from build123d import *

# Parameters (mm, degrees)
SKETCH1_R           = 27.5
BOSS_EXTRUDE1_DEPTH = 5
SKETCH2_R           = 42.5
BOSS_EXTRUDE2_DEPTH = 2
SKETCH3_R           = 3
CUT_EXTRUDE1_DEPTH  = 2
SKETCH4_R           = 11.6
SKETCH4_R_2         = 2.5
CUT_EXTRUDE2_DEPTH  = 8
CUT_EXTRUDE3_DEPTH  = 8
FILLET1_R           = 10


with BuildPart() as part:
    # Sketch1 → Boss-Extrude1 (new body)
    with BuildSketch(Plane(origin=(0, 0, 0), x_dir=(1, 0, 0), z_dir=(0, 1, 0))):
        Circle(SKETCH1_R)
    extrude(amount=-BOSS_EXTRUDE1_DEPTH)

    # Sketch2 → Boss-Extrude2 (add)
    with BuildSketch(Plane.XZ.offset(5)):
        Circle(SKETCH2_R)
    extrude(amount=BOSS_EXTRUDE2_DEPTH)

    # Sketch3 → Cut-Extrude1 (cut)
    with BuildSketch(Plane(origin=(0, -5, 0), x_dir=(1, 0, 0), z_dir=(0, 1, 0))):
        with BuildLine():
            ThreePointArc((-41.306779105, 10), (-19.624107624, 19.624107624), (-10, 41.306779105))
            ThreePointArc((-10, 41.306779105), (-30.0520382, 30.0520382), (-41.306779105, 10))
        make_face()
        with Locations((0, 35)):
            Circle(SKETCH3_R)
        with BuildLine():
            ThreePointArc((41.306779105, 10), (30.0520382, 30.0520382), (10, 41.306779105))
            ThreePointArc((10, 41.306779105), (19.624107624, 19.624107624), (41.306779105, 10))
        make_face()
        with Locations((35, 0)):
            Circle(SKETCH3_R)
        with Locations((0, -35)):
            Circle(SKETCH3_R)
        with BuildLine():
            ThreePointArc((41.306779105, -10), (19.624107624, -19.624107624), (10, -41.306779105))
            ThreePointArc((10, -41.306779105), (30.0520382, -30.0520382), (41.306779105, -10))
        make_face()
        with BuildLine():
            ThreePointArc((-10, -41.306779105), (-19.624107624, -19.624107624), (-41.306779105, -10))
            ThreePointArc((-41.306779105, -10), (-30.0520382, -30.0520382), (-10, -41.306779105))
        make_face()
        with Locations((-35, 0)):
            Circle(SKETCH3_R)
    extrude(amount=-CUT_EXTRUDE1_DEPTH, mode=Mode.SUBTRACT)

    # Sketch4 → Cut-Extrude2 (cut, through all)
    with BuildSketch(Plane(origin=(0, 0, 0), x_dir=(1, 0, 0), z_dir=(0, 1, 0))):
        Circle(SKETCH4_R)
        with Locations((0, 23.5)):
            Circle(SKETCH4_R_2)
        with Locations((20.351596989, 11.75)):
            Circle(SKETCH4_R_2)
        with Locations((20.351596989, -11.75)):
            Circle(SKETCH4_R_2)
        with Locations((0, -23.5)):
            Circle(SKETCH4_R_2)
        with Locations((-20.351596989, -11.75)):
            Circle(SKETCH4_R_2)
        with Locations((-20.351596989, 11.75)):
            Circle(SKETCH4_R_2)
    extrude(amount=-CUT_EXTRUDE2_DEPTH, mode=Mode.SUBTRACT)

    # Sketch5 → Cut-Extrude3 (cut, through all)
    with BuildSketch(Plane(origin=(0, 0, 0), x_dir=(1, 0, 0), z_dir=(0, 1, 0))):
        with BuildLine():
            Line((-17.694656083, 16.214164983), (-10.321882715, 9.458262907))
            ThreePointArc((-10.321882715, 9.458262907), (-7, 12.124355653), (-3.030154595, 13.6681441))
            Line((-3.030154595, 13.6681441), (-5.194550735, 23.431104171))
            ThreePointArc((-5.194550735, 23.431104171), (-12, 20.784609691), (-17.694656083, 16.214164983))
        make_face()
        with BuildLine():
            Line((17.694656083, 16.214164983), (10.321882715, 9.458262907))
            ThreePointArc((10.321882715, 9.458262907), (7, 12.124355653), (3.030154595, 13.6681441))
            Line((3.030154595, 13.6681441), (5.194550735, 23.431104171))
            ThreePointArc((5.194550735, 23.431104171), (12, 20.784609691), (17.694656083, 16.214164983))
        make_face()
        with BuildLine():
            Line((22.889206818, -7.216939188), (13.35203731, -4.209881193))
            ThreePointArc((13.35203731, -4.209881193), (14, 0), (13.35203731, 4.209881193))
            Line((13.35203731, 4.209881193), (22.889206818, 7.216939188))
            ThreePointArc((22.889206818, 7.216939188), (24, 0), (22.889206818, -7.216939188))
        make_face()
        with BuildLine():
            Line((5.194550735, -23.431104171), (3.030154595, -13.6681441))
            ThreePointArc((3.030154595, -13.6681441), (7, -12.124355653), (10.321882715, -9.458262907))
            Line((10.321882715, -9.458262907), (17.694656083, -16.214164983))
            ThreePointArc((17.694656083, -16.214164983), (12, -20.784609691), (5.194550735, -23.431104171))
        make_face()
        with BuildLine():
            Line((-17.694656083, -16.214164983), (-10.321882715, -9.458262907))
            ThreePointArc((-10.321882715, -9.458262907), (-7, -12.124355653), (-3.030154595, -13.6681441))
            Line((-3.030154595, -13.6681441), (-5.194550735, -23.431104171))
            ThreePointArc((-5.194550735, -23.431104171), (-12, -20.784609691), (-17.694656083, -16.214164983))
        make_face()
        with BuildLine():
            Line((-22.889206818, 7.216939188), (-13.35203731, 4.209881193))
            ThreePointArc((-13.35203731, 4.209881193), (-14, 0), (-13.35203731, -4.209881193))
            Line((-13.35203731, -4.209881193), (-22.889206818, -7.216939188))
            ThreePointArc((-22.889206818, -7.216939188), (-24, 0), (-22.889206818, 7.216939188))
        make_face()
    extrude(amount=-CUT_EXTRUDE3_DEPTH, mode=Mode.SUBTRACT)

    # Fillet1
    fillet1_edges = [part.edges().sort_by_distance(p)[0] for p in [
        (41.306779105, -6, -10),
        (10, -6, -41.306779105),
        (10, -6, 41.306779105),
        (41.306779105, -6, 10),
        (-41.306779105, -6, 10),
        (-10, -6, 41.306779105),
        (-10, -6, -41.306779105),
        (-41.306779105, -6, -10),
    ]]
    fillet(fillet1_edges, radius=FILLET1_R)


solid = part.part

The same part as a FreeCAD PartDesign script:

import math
import FreeCAD as App
import Part
import Sketcher
from FreeCAD import Vector
Q = App.Units.Quantity


def edges_at(feature, points):
    """Names of the edges that pass closest to the given points."""
    edges = feature.Shape.Edges
    near = lambda p: min(range(len(edges)), key=lambda i: edges[i].distToShape(Part.Vertex(*p))[0])
    return sorted({f"Edge{near(p) + 1}" for p in points})

doc = App.newDocument("Part")
body = doc.addObject("PartDesign::Body", "Body")

sketch1 = body.newObject("Sketcher::SketchObject", "Sketch")
sketch1.AttachmentSupport = (doc.getObject("XZ_Plane"), [""])
sketch1.MapMode = "FlatFace"
sketch1.addGeometry(Part.Circle(Vector(0, 0, 0), Vector(0, 0, 1), 28), False)
sketch1.addConstraint(Sketcher.Constraint("Coincident", 0, 3, -1, 1))
sketch1.addConstraint(Sketcher.Constraint("Diameter", 0, 55.0))
pad1 = body.newObject("PartDesign::Pad", "Pad")
pad1.Profile = sketch1
pad1.Length = 5

sketch2 = body.newObject("Sketcher::SketchObject", "Sketch001")
sketch2.AttachmentSupport = (doc.getObject("XZ_Plane"), [""])
sketch2.MapMode = "FlatFace"
sketch2.AttachmentOffset = App.Placement(Vector(0, 0, 5), App.Rotation())
sketch2.addGeometry(Part.Circle(Vector(0, 0, 0), Vector(0, 0, 1), 42), False)
sketch2.addConstraint(Sketcher.Constraint("Coincident", 0, 3, -1, 1))
sketch2.addConstraint(Sketcher.Constraint("Diameter", 0, 85.0))
pad2 = body.newObject("PartDesign::Pad", "Pad001")
pad2.Profile = sketch2
pad2.Length = 2

sketch3 = body.newObject("Sketcher::SketchObject", "Sketch002")
sketch3.AttachmentSupport = (doc.getObject("XZ_Plane"), [""])
sketch3.MapMode = "FlatFace"
sketch3.AttachmentOffset = App.Placement(Vector(0, 0, 5), App.Rotation())
sketch3.addGeometry(Part.ArcOfCircle(Part.Circle(Vector(-43, -43, 0), Vector(0, 0, 1), 33), math.radians(3), math.radians(87)), False)
sketch3.addGeometry(Part.ArcOfCircle(Part.Circle(Vector(0, 0, 0), Vector(0, 0, 1), 42.5), math.radians(-166), math.radians(-104)), False)
sketch3.addGeometry(Part.Circle(Vector(0, -35, 0), Vector(0, 0, 1), 3), False)
sketch3.addGeometry(Part.ArcOfCircle(Part.Circle(Vector(0, 0, 0), Vector(0, 0, 1), 42.5), math.radians(-76), math.radians(-14)), False)
sketch3.addGeometry(Part.ArcOfCircle(Part.Circle(Vector(43, -43, 0), Vector(0, 0, 1), 33), math.radians(93), math.radians(177)), False)
sketch3.addGeometry(Part.Circle(Vector(35, 0, 0), Vector(0, 0, 1), 3), False)
sketch3.addGeometry(Part.Circle(Vector(0, 35, 0), Vector(0, 0, 1), 3), False)
sketch3.addGeometry(Part.ArcOfCircle(Part.Circle(Vector(43, 43, 0), Vector(0, 0, 1), 33), math.radians(-177), math.radians(-93)), False)
sketch3.addGeometry(Part.ArcOfCircle(Part.Circle(Vector(0, 0, 0), Vector(0, 0, 1), 42.5), math.radians(14), math.radians(76)), False)
sketch3.addGeometry(Part.ArcOfCircle(Part.Circle(Vector(-43, 43, 0), Vector(0, 0, 1), 33), math.radians(-87), math.radians(-3)), False)
sketch3.addGeometry(Part.ArcOfCircle(Part.Circle(Vector(0, 0, 0), Vector(0, 0, 1), 42.5), math.radians(104), math.radians(166)), False)
sketch3.addGeometry(Part.Circle(Vector(-35, 0, 0), Vector(0, 0, 1), 3), False)
sketch3.addConstraint(Sketcher.Constraint("Coincident", 0, 1, 1, 2))
sketch3.addConstraint(Sketcher.Constraint("Coincident", 1, 1, 0, 2))
sketch3.addConstraint(Sketcher.Constraint("Coincident", 3, 1, 4, 2))
sketch3.addConstraint(Sketcher.Constraint("Coincident", 4, 1, 3, 2))
sketch3.addConstraint(Sketcher.Constraint("Coincident", 7, 1, 8, 2))
sketch3.addConstraint(Sketcher.Constraint("Coincident", 8, 1, 7, 2))
sketch3.addConstraint(Sketcher.Constraint("Coincident", 9, 1, 10, 2))
sketch3.addConstraint(Sketcher.Constraint("Coincident", 10, 1, 9, 2))
sketch3.addConstraint(Sketcher.Constraint("Coincident", 1, 3, -1, 1))
sketch3.addConstraint(Sketcher.Constraint("Coincident", 3, 3, -1, 1))
sketch3.addConstraint(Sketcher.Constraint("Coincident", 8, 3, -1, 1))
sketch3.addConstraint(Sketcher.Constraint("Coincident", 10, 3, -1, 1))
sketch3.addConstraint(Sketcher.Constraint("Equal", 1, 3))
sketch3.addConstraint(Sketcher.Constraint("Equal", 0, 4))
sketch3.addConstraint(Sketcher.Constraint("Equal", 2, 5))
sketch3.addConstraint(Sketcher.Constraint("Equal", 5, 6))
sketch3.addConstraint(Sketcher.Constraint("Equal", 4, 7))
sketch3.addConstraint(Sketcher.Constraint("Equal", 3, 8))
sketch3.addConstraint(Sketcher.Constraint("Equal", 7, 9))
sketch3.addConstraint(Sketcher.Constraint("Equal", 8, 10))
sketch3.addConstraint(Sketcher.Constraint("Equal", 6, 11))
sketch3.addConstraint(Sketcher.Constraint("Symmetric", 2, 3, 6, 3, -1, 1))
sketch3.addConstraint(Sketcher.Constraint("Symmetric", 0, 3, 7, 3, -1, 1))
sketch3.addConstraint(Sketcher.Constraint("Symmetric", 4, 3, 9, 3, -1, 1))
sketch3.addConstraint(Sketcher.Constraint("Symmetric", 5, 3, 11, 3, -1, 1))
sketch3.addConstraint(Sketcher.Constraint("Symmetric", 0, 3, 4, 3, -2))
sketch3.addConstraint(Sketcher.Constraint("PointOnObject", 2, 3, -2))
sketch3.addConstraint(Sketcher.Constraint("PointOnObject", 5, 3, -1))
sketch3.addConstraint(Sketcher.Constraint("Diameter", 2, 6.0))
sketch3.addConstraint(Sketcher.Constraint("Radius", 0, 33.0))
sketch3.addConstraint(Sketcher.Constraint("Radius", 1, 42.5))
sketch3.addConstraint(Sketcher.Constraint("DistanceY", 2, 3, -1, 1, 35.0))
sketch3.addConstraint(Sketcher.Constraint("DistanceX", -1, 1, 5, 3, 35.0))
sketch3.addConstraint(Sketcher.Constraint("DistanceX", 0, 1, -1, 1, 10.0))
sketch3.addConstraint(Sketcher.Constraint("DistanceY", 1, 1, -1, 1, 10.0))
pocket1 = body.newObject("PartDesign::Pocket", "Pocket")
pocket1.Profile = sketch3
pocket1.Length = 2
pocket1.Reversed = True

sketch4 = body.newObject("Sketcher::SketchObject", "Sketch003")
sketch4.AttachmentSupport = (doc.getObject("XZ_Plane"), [""])
sketch4.MapMode = "FlatFace"
sketch4.addGeometry(Part.Circle(Vector(0, 0, 0), Vector(0, 0, 1), 11.6), False)
sketch4.addGeometry(Part.Circle(Vector(0, -23.5, 0), Vector(0, 0, 1), 2.5), False)
sketch4.addGeometry(Part.Circle(Vector(20.4, -11.8, 0), Vector(0, 0, 1), 2.5), False)
sketch4.addGeometry(Part.Circle(Vector(20.4, 11.8, 0), Vector(0, 0, 1), 2.5), False)
sketch4.addGeometry(Part.Circle(Vector(0, 23.5, 0), Vector(0, 0, 1), 2.5), False)
sketch4.addGeometry(Part.Circle(Vector(-20.4, 11.8, 0), Vector(0, 0, 1), 2.5), False)
sketch4.addGeometry(Part.Circle(Vector(-20.4, -11.8, 0), Vector(0, 0, 1), 2.5), False)
sketch4.addConstraint(Sketcher.Constraint("Coincident", 0, 3, -1, 1))
sketch4.addConstraint(Sketcher.Constraint("Equal", 1, 2))
sketch4.addConstraint(Sketcher.Constraint("Equal", 2, 3))
sketch4.addConstraint(Sketcher.Constraint("Equal", 3, 4))
sketch4.addConstraint(Sketcher.Constraint("Equal", 4, 5))
sketch4.addConstraint(Sketcher.Constraint("Equal", 5, 6))
sketch4.addConstraint(Sketcher.Constraint("Symmetric", 1, 3, 4, 3, -1, 1))
sketch4.addConstraint(Sketcher.Constraint("Symmetric", 2, 3, 5, 3, -1, 1))
sketch4.addConstraint(Sketcher.Constraint("Symmetric", 3, 3, 6, 3, -1, 1))
sketch4.addConstraint(Sketcher.Constraint("Symmetric", 3, 3, 5, 3, -2))
sketch4.addConstraint(Sketcher.Constraint("PointOnObject", 1, 3, -2))
sketch4.addConstraint(Sketcher.Constraint("Diameter", 1, 5.0))
sketch4.addConstraint(Sketcher.Constraint("Diameter", 0, 23.2))
sketch4.addConstraint(Sketcher.Constraint("DistanceY", 1, 3, 4, 3, 47.0))
sketch4.addConstraint(Sketcher.Constraint("DistanceY", 2, 3, 3, 3, 23.5))
sketch4.addConstraint(Sketcher.Constraint("DistanceX", -1, 1, 2, 3, 20.351597))
pocket2 = body.newObject("PartDesign::Pocket", "Pocket001")
pocket2.Profile = sketch4
pocket2.Type = "ThroughAll"
pocket2.Reversed = True

sketch5 = body.newObject("Sketcher::SketchObject", "Sketch004")
sketch5.AttachmentSupport = (doc.getObject("XZ_Plane"), [""])
sketch5.MapMode = "FlatFace"
sketch5.addGeometry(Part.LineSegment(Vector(-18, -16, 0), Vector(-10, -9, 0)), False)
sketch5.addGeometry(Part.ArcOfCircle(Part.Circle(Vector(0, 0, 0), Vector(0, 0, 1), 14), math.radians(-137), math.radians(-103)), False)
sketch5.addGeometry(Part.LineSegment(Vector(-3, -14, 0), Vector(-5, -23, 0)), False)
sketch5.addGeometry(Part.ArcOfCircle(Part.Circle(Vector(0, 0, 0), Vector(0, 0, 1), 24), math.radians(-138), math.radians(-103)), False)
sketch5.addGeometry(Part.LineSegment(Vector(10, -9, 0), Vector(18, -16, 0)), False)
sketch5.addGeometry(Part.ArcOfCircle(Part.Circle(Vector(0, 0, 0), Vector(0, 0, 1), 24), math.radians(-77), math.radians(-42)), False)
sketch5.addGeometry(Part.LineSegment(Vector(5, -23, 0), Vector(3, -14, 0)), False)
sketch5.addGeometry(Part.ArcOfCircle(Part.Circle(Vector(0, 0, 0), Vector(0, 0, 1), 14), math.radians(-77), math.radians(-43)), False)
sketch5.addGeometry(Part.LineSegment(Vector(13, 4, 0), Vector(23, 7, 0)), False)
sketch5.addGeometry(Part.ArcOfCircle(Part.Circle(Vector(0, 0, 0), Vector(0, 0, 1), 24), math.radians(-17), math.radians(17)), False)
sketch5.addGeometry(Part.LineSegment(Vector(23, -7, 0), Vector(13, -4, 0)), False)
sketch5.addGeometry(Part.ArcOfCircle(Part.Circle(Vector(0, 0, 0), Vector(0, 0, 1), 14), math.radians(-18), math.radians(18)), False)
sketch5.addGeometry(Part.LineSegment(Vector(3, 14, 0), Vector(5, 23, 0)), False)
sketch5.addGeometry(Part.ArcOfCircle(Part.Circle(Vector(0, 0, 0), Vector(0, 0, 1), 24), math.radians(42), math.radians(77)), False)
sketch5.addGeometry(Part.LineSegment(Vector(18, 16, 0), Vector(10, 9, 0)), False)
sketch5.addGeometry(Part.ArcOfCircle(Part.Circle(Vector(0, 0, 0), Vector(0, 0, 1), 14), math.radians(43), math.radians(77)), False)
sketch5.addGeometry(Part.LineSegment(Vector(-10, 9, 0), Vector(-18, 16, 0)), False)
sketch5.addGeometry(Part.ArcOfCircle(Part.Circle(Vector(0, 0, 0), Vector(0, 0, 1), 24), math.radians(103), math.radians(138)), False)
sketch5.addGeometry(Part.LineSegment(Vector(-5, 23, 0), Vector(-3, 14, 0)), False)
sketch5.addGeometry(Part.ArcOfCircle(Part.Circle(Vector(0, 0, 0), Vector(0, 0, 1), 14), math.radians(103), math.radians(137)), False)
sketch5.addGeometry(Part.LineSegment(Vector(-13, -4, 0), Vector(-23, -7, 0)), False)
sketch5.addGeometry(Part.ArcOfCircle(Part.Circle(Vector(0, 0, 0), Vector(0, 0, 1), 24), math.radians(163), math.radians(197)), False)
sketch5.addGeometry(Part.LineSegment(Vector(-23, 7, 0), Vector(-13, 4, 0)), False)
sketch5.addGeometry(Part.ArcOfCircle(Part.Circle(Vector(0, 0, 0), Vector(0, 0, 1), 14), math.radians(162), math.radians(198)), False)
sketch5.addConstraint(Sketcher.Constraint("Coincident", 0, 2, 1, 1))
sketch5.addConstraint(Sketcher.Constraint("Coincident", 1, 2, 2, 1))
sketch5.addConstraint(Sketcher.Constraint("Coincident", 2, 2, 3, 2))
sketch5.addConstraint(Sketcher.Constraint("Coincident", 3, 1, 0, 1))
sketch5.addConstraint(Sketcher.Constraint("Coincident", 4, 2, 5, 2))
sketch5.addConstraint(Sketcher.Constraint("Coincident", 5, 1, 6, 1))
sketch5.addConstraint(Sketcher.Constraint("Coincident", 6, 2, 7, 1))
sketch5.addConstraint(Sketcher.Constraint("Coincident", 7, 2, 4, 1))
sketch5.addConstraint(Sketcher.Constraint("Coincident", 8, 2, 9, 2))
sketch5.addConstraint(Sketcher.Constraint("Coincident", 9, 1, 10, 1))
sketch5.addConstraint(Sketcher.Constraint("Coincident", 10, 2, 11, 1))
sketch5.addConstraint(Sketcher.Constraint("Coincident", 11, 2, 8, 1))
sketch5.addConstraint(Sketcher.Constraint("Coincident", 12, 2, 13, 2))
sketch5.addConstraint(Sketcher.Constraint("Coincident", 13, 1, 14, 1))
sketch5.addConstraint(Sketcher.Constraint("Coincident", 14, 2, 15, 1))
sketch5.addConstraint(Sketcher.Constraint("Coincident", 15, 2, 12, 1))
sketch5.addConstraint(Sketcher.Constraint("Coincident", 16, 2, 17, 2))
sketch5.addConstraint(Sketcher.Constraint("Coincident", 17, 1, 18, 1))
sketch5.addConstraint(Sketcher.Constraint("Coincident", 18, 2, 19, 1))
sketch5.addConstraint(Sketcher.Constraint("Coincident", 19, 2, 16, 1))
sketch5.addConstraint(Sketcher.Constraint("Coincident", 20, 2, 21, 2))
sketch5.addConstraint(Sketcher.Constraint("Coincident", 21, 1, 22, 1))
sketch5.addConstraint(Sketcher.Constraint("Coincident", 22, 2, 23, 1))
sketch5.addConstraint(Sketcher.Constraint("Coincident", 23, 2, 20, 1))
sketch5.addConstraint(Sketcher.Constraint("Coincident", 1, 3, -1, 1))
sketch5.addConstraint(Sketcher.Constraint("Coincident", 3, 3, -1, 1))
sketch5.addConstraint(Sketcher.Constraint("Coincident", 5, 3, -1, 1))
sketch5.addConstraint(Sketcher.Constraint("Coincident", 7, 3, -1, 1))
sketch5.addConstraint(Sketcher.Constraint("Coincident", 9, 3, -1, 1))
sketch5.addConstraint(Sketcher.Constraint("Coincident", 11, 3, -1, 1))
sketch5.addConstraint(Sketcher.Constraint("Coincident", 13, 3, -1, 1))
sketch5.addConstraint(Sketcher.Constraint("Coincident", 15, 3, -1, 1))
sketch5.addConstraint(Sketcher.Constraint("Coincident", 17, 3, -1, 1))
sketch5.addConstraint(Sketcher.Constraint("Coincident", 19, 3, -1, 1))
sketch5.addConstraint(Sketcher.Constraint("Coincident", 21, 3, -1, 1))
sketch5.addConstraint(Sketcher.Constraint("Coincident", 23, 3, -1, 1))
sketch5.addConstraint(Sketcher.Constraint("Equal", 3, 5))
sketch5.addConstraint(Sketcher.Constraint("Equal", 1, 7))
sketch5.addConstraint(Sketcher.Constraint("Equal", 5, 9))
sketch5.addConstraint(Sketcher.Constraint("Equal", 7, 11))
sketch5.addConstraint(Sketcher.Constraint("Equal", 9, 13))
sketch5.addConstraint(Sketcher.Constraint("Equal", 11, 15))
sketch5.addConstraint(Sketcher.Constraint("Equal", 13, 17))
sketch5.addConstraint(Sketcher.Constraint("Equal", 15, 19))
sketch5.addConstraint(Sketcher.Constraint("Equal", 17, 21))
sketch5.addConstraint(Sketcher.Constraint("Equal", 19, 23))
sketch5.addConstraint(Sketcher.Constraint("Parallel", 2, 12))
sketch5.addConstraint(Sketcher.Constraint("Parallel", 0, 14))
sketch5.addConstraint(Sketcher.Constraint("Parallel", 4, 16))
sketch5.addConstraint(Sketcher.Constraint("Parallel", 6, 18))
sketch5.addConstraint(Sketcher.Constraint("Parallel", 8, 20))
sketch5.addConstraint(Sketcher.Constraint("Parallel", 10, 22))
sketch5.addConstraint(Sketcher.Constraint("Horizontal", 3, 1, 4, 2))
sketch5.addConstraint(Sketcher.Constraint("Horizontal", 2, 2, 5, 1))
sketch5.addConstraint(Sketcher.Constraint("Horizontal", 1, 2, 6, 2))
sketch5.addConstraint(Sketcher.Constraint("Horizontal", 0, 2, 7, 2))
sketch5.addConstraint(Sketcher.Constraint("Horizontal", 13, 1, 16, 2))
sketch5.addConstraint(Sketcher.Constraint("Horizontal", 12, 2, 17, 1))
sketch5.addConstraint(Sketcher.Constraint("Horizontal", 9, 1, 20, 2))
sketch5.addConstraint(Sketcher.Constraint("Horizontal", 8, 2, 21, 1))
sketch5.addConstraint(Sketcher.Constraint("Horizontal", 11, 2, 22, 2))
sketch5.addConstraint(Sketcher.Constraint("Vertical", 8, 2, 9, 1))
sketch5.addConstraint(Sketcher.Constraint("Vertical", 5, 1, 12, 2))
sketch5.addConstraint(Sketcher.Constraint("Vertical", 4, 2, 13, 1))
sketch5.addConstraint(Sketcher.Constraint("Radius", 1, 14.0))
sketch5.addConstraint(Sketcher.Constraint("Radius", 3, 24.0))
sketch5.addConstraint(Sketcher.Constraint("Angle", 0, Q("42.5 deg")))
sketch5.addConstraint(Sketcher.Constraint("Angle", 2, Q("-102.5 deg")))
sketch5.addConstraint(Sketcher.Constraint("Angle", 8, Q("17.5 deg")))
sketch5.addConstraint(Sketcher.Constraint("DistanceX", 3, 1, 1, 2, 14.664501))
sketch5.addConstraint(Sketcher.Constraint("DistanceX", 2, 2, 5, 1, 10.389101))
sketch5.addConstraint(Sketcher.Constraint("DistanceY", -1, 1, 8, 2, 7.216939))
pocket3 = body.newObject("PartDesign::Pocket", "Pocket002")
pocket3.Profile = sketch5
pocket3.Type = "ThroughAll"
pocket3.Reversed = True
doc.recompute()

fillet = body.newObject("PartDesign::Fillet", "Fillet")
fillet.Base = (pocket3, edges_at(pocket3, [
    (41.307, -6, -10),
    (10, -6, -41.307),
    (10, -6, 41.307),
    (41.307, -6, 10),
    (-41.307, -6, 10),
    (-10, -6, 41.307),
    (-10, -6, -41.307),
    (-41.307, -6, -10),
]))
fillet.Radius = 10

doc.recompute()
